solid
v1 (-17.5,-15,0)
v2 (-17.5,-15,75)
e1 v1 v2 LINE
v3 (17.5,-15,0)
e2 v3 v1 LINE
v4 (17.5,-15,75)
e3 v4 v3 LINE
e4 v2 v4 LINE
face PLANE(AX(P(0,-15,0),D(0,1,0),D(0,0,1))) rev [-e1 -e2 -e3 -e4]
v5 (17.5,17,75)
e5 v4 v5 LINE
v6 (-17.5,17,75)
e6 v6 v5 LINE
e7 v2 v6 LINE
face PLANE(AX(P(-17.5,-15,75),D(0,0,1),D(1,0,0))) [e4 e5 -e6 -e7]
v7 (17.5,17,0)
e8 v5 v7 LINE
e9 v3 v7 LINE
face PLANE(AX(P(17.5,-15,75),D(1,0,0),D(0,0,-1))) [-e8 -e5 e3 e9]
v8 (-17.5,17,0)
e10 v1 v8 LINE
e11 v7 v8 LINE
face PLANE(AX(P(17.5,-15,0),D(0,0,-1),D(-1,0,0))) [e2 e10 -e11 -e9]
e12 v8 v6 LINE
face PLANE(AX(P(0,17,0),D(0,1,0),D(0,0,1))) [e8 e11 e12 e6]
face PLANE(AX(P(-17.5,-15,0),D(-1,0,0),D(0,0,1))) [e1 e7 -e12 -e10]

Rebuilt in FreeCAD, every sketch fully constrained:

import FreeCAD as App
import Part
import Sketcher

V = App.Vector

doc = App.newDocument("Part")
body = doc.addObject("PartDesign::Body", "Body")

# Sketch on XZ plane
sketch1 = body.newObject("Sketcher::SketchObject", "Sketch")
sketch1.AttachmentSupport = (doc.getObject("XZ_Plane"), [""])
sketch1.MapMode = "FlatFace"
sketch1.AttachmentOffset = App.Placement(V(0, 0, -17), App.Rotation())
sketch1.addGeometry([
    Part.LineSegment(V(-17.5, 0, 0), V(-17.5, 75, 0)),
    Part.LineSegment(V(-17.5, 75, 0), V(17.5, 75, 0)),
    Part.LineSegment(V(17.5, 75, 0), V(17.5, 0, 0)),
    Part.LineSegment(V(17.5, 0, 0), V(-17.5, 0, 0)),
], False)
sketch1.addConstraint([
    Sketcher.Constraint("Coincident", 0, 2, 1, 1),
    Sketcher.Constraint("Coincident", 1, 2, 2, 1),
    Sketcher.Constraint("Coincident", 2, 2, 3, 1),
    Sketcher.Constraint("Coincident", 3, 2, 0, 1),
    Sketcher.Constraint("Vertical", 0),
    Sketcher.Constraint("Horizontal", 1),
    Sketcher.Constraint("Vertical", 2),
    Sketcher.Constraint("Horizontal", 3),
    Sketcher.Constraint("Symmetric", 2, 2, 3, 2, -1, 1),
    Sketcher.Constraint("DistanceX", 1, 1, 1, 2, 35.0),
    Sketcher.Constraint("DistanceY", 0, 1, 0, 2, 75.0),
])
pad1 = body.newObject("PartDesign::Pad", "Pad")
pad1.Profile = sketch1
pad1.Length = 32

doc.recompute()
